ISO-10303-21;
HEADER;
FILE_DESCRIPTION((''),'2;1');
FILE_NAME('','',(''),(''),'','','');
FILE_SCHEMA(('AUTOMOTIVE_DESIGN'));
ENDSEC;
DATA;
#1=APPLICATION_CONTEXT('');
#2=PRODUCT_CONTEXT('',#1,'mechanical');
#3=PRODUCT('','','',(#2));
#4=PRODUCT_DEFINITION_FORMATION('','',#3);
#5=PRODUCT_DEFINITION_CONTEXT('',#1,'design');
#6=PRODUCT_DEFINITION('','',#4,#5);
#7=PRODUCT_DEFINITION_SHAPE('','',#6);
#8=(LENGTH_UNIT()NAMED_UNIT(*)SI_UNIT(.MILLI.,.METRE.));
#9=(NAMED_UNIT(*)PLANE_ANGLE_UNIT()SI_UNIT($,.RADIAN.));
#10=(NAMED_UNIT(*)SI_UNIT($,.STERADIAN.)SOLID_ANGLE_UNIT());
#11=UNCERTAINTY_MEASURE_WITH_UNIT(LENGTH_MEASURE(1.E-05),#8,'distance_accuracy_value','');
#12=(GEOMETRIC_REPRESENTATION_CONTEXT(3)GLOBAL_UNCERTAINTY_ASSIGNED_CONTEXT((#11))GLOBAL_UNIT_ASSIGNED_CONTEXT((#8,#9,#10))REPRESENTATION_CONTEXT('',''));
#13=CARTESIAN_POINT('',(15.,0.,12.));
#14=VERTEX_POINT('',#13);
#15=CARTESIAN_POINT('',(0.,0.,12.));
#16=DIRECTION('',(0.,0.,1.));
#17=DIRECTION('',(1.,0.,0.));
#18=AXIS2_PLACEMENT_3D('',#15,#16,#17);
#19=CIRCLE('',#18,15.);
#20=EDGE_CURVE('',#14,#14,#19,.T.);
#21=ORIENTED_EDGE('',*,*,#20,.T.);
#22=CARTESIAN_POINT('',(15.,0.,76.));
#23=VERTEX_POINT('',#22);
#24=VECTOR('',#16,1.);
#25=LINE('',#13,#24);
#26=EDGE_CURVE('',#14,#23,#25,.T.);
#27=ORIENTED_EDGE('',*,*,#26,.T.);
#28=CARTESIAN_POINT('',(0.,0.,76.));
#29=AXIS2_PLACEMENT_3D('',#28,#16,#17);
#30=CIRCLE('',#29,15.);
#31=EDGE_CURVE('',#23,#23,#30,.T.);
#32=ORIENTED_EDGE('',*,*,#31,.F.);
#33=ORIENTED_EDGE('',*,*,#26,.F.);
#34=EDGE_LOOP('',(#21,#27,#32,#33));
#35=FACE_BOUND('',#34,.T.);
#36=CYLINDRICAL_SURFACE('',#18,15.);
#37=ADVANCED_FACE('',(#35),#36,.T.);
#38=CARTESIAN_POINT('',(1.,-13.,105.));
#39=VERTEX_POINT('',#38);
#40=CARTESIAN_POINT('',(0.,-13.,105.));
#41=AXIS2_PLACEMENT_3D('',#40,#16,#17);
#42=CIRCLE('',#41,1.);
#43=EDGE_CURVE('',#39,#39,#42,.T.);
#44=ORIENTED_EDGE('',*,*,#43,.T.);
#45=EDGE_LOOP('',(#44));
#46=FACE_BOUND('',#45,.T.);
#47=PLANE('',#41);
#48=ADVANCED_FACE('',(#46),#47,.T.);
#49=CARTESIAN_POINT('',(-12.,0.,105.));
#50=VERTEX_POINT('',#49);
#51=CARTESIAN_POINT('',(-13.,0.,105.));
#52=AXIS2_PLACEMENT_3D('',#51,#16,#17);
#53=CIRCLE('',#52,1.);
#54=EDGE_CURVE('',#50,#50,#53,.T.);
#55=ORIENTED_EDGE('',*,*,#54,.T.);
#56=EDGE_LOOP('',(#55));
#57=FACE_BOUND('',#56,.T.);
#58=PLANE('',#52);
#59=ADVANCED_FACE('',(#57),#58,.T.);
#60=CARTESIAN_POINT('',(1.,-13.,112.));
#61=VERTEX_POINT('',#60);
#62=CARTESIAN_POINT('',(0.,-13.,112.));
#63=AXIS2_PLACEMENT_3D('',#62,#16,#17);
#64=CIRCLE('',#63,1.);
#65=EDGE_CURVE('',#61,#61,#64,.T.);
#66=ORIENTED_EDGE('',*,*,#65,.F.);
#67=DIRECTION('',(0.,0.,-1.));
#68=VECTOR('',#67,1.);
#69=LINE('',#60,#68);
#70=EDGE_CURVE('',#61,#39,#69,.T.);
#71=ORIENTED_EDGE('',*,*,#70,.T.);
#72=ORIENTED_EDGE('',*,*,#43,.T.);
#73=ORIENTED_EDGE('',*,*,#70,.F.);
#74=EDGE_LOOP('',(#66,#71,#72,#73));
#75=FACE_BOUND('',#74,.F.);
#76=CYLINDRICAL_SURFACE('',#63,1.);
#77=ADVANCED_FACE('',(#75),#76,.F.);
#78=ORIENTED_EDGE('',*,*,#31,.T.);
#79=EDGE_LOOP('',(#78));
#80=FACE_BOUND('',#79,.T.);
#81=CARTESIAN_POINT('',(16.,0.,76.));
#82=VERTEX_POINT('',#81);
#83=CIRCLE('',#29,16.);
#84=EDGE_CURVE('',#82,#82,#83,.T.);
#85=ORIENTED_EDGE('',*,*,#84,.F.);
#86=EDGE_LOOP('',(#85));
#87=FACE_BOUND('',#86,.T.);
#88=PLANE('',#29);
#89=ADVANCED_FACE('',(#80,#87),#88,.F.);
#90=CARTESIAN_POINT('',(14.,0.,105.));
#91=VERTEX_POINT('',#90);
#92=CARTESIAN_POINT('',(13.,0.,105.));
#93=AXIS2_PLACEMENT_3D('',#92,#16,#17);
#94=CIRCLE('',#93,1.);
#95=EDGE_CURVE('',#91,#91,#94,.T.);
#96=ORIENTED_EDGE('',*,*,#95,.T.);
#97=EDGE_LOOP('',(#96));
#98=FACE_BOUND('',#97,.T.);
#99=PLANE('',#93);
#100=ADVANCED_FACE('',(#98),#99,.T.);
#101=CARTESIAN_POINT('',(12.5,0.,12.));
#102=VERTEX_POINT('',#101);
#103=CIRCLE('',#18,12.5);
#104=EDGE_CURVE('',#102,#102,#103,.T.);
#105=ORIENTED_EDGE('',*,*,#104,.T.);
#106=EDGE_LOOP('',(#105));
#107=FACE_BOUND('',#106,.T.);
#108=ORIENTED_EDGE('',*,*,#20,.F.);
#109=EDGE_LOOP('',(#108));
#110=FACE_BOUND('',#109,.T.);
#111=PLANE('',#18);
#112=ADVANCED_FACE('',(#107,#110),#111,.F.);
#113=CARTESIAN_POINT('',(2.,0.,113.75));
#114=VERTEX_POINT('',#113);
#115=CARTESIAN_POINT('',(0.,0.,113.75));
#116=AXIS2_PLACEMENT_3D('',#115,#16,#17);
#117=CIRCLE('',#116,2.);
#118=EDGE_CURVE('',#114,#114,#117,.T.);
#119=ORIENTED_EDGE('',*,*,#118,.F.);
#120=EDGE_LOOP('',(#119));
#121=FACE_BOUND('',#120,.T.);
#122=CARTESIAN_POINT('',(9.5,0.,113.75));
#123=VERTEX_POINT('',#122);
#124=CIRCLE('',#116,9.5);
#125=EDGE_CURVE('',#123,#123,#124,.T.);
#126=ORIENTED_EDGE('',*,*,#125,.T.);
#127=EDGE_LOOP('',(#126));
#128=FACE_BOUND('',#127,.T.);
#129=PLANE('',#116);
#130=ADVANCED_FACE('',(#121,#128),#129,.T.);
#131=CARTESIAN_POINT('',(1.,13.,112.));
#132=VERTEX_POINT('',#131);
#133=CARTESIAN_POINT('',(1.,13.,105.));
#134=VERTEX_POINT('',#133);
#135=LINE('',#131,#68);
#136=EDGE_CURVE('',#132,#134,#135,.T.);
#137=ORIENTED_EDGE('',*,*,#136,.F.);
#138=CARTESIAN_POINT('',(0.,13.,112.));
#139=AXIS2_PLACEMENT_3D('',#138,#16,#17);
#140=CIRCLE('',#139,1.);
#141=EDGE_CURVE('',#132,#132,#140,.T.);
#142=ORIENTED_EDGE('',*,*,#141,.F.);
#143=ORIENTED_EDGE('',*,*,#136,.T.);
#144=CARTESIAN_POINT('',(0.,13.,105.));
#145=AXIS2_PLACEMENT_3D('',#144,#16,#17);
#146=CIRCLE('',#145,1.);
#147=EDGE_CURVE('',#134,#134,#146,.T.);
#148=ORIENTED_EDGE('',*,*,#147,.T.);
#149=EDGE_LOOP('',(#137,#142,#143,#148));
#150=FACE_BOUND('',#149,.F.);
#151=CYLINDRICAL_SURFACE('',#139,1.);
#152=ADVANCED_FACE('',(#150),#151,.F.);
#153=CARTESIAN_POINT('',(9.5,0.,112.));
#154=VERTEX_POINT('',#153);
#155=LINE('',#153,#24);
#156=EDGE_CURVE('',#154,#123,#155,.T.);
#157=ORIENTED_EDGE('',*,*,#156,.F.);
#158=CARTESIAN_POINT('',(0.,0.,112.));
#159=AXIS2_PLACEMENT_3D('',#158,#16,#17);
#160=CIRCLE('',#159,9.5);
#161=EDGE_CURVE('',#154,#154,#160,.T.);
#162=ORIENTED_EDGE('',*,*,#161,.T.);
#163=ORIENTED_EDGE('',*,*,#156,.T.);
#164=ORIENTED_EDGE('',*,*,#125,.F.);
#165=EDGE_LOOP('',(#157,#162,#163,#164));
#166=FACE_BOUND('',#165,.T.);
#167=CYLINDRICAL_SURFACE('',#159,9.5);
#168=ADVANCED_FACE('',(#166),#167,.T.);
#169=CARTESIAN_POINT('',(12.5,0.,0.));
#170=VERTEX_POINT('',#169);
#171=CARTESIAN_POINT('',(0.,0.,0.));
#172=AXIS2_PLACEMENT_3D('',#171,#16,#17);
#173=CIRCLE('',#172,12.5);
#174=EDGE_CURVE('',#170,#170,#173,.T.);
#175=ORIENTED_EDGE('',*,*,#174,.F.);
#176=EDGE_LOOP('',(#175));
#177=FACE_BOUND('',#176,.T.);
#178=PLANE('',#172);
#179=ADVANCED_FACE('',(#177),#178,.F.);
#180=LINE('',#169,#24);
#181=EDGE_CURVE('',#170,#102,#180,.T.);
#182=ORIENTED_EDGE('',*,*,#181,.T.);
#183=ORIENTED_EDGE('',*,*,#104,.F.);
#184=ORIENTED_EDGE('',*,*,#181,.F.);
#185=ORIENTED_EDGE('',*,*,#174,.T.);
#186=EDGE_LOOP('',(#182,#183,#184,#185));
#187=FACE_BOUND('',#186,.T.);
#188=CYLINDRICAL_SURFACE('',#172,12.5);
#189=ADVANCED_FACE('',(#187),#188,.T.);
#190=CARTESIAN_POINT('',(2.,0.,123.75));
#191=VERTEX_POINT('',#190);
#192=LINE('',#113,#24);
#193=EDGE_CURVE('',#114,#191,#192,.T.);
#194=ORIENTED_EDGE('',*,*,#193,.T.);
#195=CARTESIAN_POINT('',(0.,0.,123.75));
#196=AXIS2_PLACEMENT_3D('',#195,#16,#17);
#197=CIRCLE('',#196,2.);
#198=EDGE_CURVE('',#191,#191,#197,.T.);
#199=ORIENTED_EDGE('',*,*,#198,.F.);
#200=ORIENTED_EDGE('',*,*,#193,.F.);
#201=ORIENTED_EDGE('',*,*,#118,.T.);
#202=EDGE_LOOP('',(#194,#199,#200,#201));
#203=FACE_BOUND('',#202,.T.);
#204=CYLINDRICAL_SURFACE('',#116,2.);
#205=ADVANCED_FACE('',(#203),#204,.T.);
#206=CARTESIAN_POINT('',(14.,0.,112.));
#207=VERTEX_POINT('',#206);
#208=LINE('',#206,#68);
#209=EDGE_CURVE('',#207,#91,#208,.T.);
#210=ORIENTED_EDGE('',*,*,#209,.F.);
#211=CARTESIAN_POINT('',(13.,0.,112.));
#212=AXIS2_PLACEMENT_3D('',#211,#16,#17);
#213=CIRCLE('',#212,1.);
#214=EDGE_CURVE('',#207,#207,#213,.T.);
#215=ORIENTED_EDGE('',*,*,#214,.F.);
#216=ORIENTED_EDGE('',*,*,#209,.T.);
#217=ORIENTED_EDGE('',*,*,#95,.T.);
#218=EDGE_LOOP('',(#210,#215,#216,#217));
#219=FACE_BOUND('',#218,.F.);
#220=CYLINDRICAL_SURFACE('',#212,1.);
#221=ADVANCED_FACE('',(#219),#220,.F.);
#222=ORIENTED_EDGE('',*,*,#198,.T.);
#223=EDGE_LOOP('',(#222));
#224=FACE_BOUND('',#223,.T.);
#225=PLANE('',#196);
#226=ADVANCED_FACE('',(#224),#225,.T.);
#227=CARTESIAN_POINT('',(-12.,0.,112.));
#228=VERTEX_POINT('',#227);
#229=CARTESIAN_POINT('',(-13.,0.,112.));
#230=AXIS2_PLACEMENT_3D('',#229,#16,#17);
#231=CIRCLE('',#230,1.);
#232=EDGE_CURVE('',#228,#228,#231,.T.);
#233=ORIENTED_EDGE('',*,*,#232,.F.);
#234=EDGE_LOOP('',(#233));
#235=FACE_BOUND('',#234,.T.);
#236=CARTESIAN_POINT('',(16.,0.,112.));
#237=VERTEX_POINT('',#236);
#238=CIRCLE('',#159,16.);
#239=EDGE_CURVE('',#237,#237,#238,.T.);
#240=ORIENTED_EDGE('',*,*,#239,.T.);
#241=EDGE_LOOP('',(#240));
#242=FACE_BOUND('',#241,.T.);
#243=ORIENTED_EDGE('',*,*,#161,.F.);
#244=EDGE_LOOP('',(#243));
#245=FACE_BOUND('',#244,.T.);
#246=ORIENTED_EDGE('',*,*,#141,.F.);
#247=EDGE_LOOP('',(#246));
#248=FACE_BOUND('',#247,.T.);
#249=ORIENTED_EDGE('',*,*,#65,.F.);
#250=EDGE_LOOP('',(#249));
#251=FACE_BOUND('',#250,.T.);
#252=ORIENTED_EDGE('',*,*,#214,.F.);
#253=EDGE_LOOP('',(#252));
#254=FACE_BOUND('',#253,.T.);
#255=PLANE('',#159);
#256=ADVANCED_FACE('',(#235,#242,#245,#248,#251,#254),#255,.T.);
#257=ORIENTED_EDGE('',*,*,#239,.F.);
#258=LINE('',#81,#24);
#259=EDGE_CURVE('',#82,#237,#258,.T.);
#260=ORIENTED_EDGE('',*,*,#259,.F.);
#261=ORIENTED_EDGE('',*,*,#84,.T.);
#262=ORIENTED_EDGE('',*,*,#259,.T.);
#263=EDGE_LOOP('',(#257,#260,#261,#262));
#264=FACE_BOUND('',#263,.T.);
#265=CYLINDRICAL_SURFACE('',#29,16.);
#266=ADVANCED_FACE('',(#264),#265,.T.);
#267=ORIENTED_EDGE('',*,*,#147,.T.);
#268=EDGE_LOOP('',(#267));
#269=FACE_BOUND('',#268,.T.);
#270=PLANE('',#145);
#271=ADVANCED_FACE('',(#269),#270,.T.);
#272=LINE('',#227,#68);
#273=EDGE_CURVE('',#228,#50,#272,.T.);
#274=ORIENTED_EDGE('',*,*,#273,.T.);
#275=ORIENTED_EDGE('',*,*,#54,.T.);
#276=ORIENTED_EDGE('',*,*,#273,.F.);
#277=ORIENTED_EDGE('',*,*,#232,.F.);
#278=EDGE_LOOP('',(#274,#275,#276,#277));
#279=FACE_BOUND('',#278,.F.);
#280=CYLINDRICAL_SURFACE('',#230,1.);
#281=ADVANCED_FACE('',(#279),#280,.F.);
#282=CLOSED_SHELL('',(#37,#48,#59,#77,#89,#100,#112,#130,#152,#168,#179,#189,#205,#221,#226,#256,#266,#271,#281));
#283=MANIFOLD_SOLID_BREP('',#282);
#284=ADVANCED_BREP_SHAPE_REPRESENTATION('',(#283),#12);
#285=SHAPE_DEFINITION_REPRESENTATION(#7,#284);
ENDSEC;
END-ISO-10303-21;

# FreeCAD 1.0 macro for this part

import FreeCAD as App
import Part
import Sketcher
from FreeCAD import Vector
Q = App.Units.Quantity

doc = App.newDocument("Part")
body = doc.addObject("PartDesign::Body", "Body")

# Sketch on XZ plane
sketch1 = body.newObject("Sketcher::SketchObject", "Sketch")
sketch1.AttachmentSupport = (doc.getObject("XZ_Plane"), [""])
sketch1.MapMode = "FlatFace"
sketch1.addGeometry([
    Part.LineSegment(Vector(2, 123.75, 0), Vector(0, 123.75, 0)),  # 0
    Part.LineSegment(Vector(0, 123.75, 0), Vector(0, 0, 0)),  # 1
    Part.LineSegment(Vector(0, 0, 0), Vector(12.5, 0, 0)),  # 2
    Part.LineSegment(Vector(12.5, 0, 0), Vector(12.5, 12, 0)),  # 3
    Part.LineSegment(Vector(12.5, 12, 0), Vector(15, 12, 0)),  # 4
    Part.LineSegment(Vector(15, 12, 0), Vector(15, 76, 0)),  # 5
    Part.LineSegment(Vector(15, 76, 0), Vector(16, 76, 0)),  # 6
    Part.LineSegment(Vector(16, 76, 0), Vector(16, 112, 0)),  # 7
    Part.LineSegment(Vector(16, 112, 0), Vector(9.5, 112, 0)),  # 8
    Part.LineSegment(Vector(9.5, 112, 0), Vector(9.5, 113.75, 0)),  # 9
    Part.LineSegment(Vector(9.5, 113.75, 0), Vector(2, 113.75, 0)),  # 10
    Part.LineSegment(Vector(2, 113.75, 0), Vector(2, 123.75, 0)),  # 11
], False)
sketch1.addConstraint([
    Sketcher.Constraint("Coincident", 0, 2, 1, 1),
    Sketcher.Constraint("Coincident", 1, 2, 2, 1),
    Sketcher.Constraint("Coincident", 2, 2, 3, 1),
    Sketcher.Constraint("Coincident", 3, 2, 4, 1),
    Sketcher.Constraint("Coincident", 4, 2, 5, 1),
    Sketcher.Constraint("Coincident", 5, 2, 6, 1),
    Sketcher.Constraint("Coincident", 6, 2, 7, 1),
    Sketcher.Constraint("Coincident", 7, 2, 8, 1),
    Sketcher.Constraint("Coincident", 8, 2, 9, 1),
    Sketcher.Constraint("Coincident", 9, 2, 10, 1),
    Sketcher.Constraint("Coincident", 10, 2, 11, 1),
    Sketcher.Constraint("Coincident", 11, 2, 0, 1),
    Sketcher.Constraint("Horizontal", 0),
    Sketcher.Constraint("Vertical", 1),
    Sketcher.Constraint("Horizontal", 2),
    Sketcher.Constraint("Vertical", 3),
    Sketcher.Constraint("Horizontal", 4),
    Sketcher.Constraint("Vertical", 5),
    Sketcher.Constraint("Horizontal", 6),
    Sketcher.Constraint("Vertical", 7),
    Sketcher.Constraint("Horizontal", 8),
    Sketcher.Constraint("Vertical", 9),
    Sketcher.Constraint("Horizontal", 10),
    Sketcher.Constraint("Vertical", 11),
    Sketcher.Constraint("Coincident", 1, 2, -1, 1),
    Sketcher.Constraint("DistanceX", 0, 2, 0, 1, Q("2 mm")),
    Sketcher.Constraint("DistanceX", 6, 1, 6, 2, Q("1 mm")),
    Sketcher.Constraint("DistanceY", 3, 1, 3, 2, Q("12 mm")),
    Sketcher.Constraint("DistanceY", 5, 1, 5, 2, Q("64 mm")),
    Sketcher.Constraint("DistanceY", 7, 1, 7, 2, Q("36 mm")),
    Sketcher.Constraint("DistanceY", 11, 1, 11, 2, Q("10 mm")),
    Sketcher.Constraint("DistanceX", 2, 1, 2, 2, Q("12.5 mm")),
    Sketcher.Constraint("DistanceX", 4, 1, 4, 2, Q("2.5 mm")),
    Sketcher.Constraint("DistanceX", 8, 2, 8, 1, Q("6.5 mm")),
    Sketcher.Constraint("DistanceY", 1, 2, 1, 1, Q("123.75 mm")),
])
revolution = body.newObject("PartDesign::Revolution", "Revolution")
revolution.Profile = sketch1
revolution.ReferenceAxis = (sketch1, ["V_Axis"])
revolution.Angle = 360

# Sketch on XY plane
sketch2 = body.newObject("Sketcher::SketchObject", "Sketch001")
sketch2.AttachmentSupport = (doc.getObject("XY_Plane"), [""])
sketch2.MapMode = "FlatFace"
sketch2.AttachmentOffset = App.Placement(Vector(0, 0, 112), App.Rotation())
sketch2.addGeometry([
    Part.Circle(Vector(0, 13, 0), Vector(0, 0, 1), 1),
    Part.Circle(Vector(13, 0, 0), Vector(0, 0, 1), 1),
    Part.Circle(Vector(-13, 0, 0), Vector(0, 0, 1), 1),
    Part.Circle(Vector(0, -13, 0), Vector(0, 0, 1), 1),
], False)
sketch2.addConstraint([
    Sketcher.Constraint("Equal", 0, 1),
    Sketcher.Constraint("Equal", 1, 2),
    Sketcher.Constraint("Equal", 2, 3),
    Sketcher.Constraint("Symmetric", 1, 3, 2, 3, -1, 1),
    Sketcher.Constraint("Symmetric", 0, 3, 3, 3, -1, 1),
    Sketcher.Constraint("PointOnObject", 0, 3, -2),
    Sketcher.Constraint("PointOnObject", 1, 3, -1),
    Sketcher.Constraint("Diameter", 0, Q("2 mm")),
    Sketcher.Constraint("DistanceY", -1, 1, 0, 3, Q("13 mm")),
    Sketcher.Constraint("DistanceX", -1, 1, 1, 3, Q("13 mm")),
])
pocket1 = body.newObject("PartDesign::Pocket", "Pocket")
pocket1.Profile = sketch2
pocket1.Length = 7

doc.recompute()
